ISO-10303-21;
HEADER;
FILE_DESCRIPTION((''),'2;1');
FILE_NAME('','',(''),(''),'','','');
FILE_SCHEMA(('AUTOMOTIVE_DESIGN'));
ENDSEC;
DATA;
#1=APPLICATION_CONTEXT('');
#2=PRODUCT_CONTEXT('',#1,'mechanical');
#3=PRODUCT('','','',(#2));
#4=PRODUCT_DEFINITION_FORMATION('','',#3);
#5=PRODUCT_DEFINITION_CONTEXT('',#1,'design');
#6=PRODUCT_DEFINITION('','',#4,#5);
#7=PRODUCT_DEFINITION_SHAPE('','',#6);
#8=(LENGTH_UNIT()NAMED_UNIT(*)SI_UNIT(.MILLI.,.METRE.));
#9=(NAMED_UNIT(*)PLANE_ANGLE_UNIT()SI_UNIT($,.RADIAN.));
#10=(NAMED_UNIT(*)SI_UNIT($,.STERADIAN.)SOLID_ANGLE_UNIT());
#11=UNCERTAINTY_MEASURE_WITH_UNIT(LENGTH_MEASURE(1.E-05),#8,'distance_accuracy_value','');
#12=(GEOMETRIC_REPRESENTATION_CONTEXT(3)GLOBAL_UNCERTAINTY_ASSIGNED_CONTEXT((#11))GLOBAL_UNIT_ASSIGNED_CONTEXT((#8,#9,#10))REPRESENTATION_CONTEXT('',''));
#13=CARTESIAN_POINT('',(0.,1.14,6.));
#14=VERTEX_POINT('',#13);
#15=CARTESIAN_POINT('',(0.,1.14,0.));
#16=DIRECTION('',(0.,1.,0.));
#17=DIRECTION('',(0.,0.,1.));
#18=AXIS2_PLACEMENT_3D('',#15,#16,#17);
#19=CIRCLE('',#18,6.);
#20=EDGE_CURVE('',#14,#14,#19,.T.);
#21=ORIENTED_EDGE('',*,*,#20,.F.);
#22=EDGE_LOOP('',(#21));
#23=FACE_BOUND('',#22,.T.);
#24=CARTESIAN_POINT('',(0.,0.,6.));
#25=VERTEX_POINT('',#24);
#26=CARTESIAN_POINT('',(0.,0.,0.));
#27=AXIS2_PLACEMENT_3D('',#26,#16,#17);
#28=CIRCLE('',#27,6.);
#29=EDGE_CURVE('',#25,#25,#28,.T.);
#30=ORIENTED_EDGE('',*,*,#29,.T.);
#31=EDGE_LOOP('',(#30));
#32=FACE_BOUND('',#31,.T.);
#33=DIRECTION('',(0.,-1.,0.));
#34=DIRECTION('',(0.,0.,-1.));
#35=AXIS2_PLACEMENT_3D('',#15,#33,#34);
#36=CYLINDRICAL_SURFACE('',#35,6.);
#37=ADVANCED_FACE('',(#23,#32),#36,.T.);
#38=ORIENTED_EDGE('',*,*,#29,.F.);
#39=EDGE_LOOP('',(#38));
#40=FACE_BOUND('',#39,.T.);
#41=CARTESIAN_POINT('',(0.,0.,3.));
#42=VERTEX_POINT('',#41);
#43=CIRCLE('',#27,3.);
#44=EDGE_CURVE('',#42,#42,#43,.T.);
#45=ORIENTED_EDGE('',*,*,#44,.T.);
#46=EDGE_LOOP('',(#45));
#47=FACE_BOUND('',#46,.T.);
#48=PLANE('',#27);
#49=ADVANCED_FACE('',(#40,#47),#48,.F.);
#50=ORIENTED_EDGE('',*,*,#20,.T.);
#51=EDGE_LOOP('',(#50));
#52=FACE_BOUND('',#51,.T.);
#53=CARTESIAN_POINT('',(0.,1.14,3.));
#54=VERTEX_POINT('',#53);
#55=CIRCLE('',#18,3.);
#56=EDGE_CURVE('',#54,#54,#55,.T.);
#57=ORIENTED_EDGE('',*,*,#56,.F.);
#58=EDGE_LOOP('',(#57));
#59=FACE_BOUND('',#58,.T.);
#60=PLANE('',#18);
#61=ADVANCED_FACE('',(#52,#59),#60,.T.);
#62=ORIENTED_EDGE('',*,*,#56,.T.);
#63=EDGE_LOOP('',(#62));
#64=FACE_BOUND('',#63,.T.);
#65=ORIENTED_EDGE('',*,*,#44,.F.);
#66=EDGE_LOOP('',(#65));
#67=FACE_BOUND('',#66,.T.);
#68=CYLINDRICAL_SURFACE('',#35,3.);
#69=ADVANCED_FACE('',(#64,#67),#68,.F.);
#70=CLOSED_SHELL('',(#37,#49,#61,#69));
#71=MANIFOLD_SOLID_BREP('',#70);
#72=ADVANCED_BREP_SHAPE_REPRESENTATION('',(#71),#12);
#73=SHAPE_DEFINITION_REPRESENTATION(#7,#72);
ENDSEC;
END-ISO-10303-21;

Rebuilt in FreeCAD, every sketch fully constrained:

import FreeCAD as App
import Part
import Sketcher

doc = App.newDocument("Part")
params = doc.addObject("Spreadsheet::Sheet", "Params")
for row, (alias, value) in enumerate([
    ("sketch1_diameter", "12 mm"),
    ("sketch1_diameter2", "6 mm"),
    ("pad1_length", "1.14 mm"),
], start=1):
    params.set(f"A{row}", alias)
    params.set(f"B{row}", "=" + value)
    params.setAlias(f"B{row}", alias)

body = doc.addObject("PartDesign::Body", "Body")

# Sketch on XZ plane
sketch1 = doc.addObject("Sketcher::SketchObject", "Sketch")
body.addObject(sketch1)
sketch1.AttachmentSupport = (doc.XZ_Plane, [""])
sketch1.MapMode = "FlatFace"
sketch1.addGeometry(Part.Circle(App.Vector(0, 0, 0), App.Vector(0, 0, 1), 6), False)
sketch1.addGeometry(Part.Circle(App.Vector(0, 0, 0), App.Vector(0, 0, 1), 3), False)
sketch1.addConstraint(Sketcher.Constraint("Coincident", 0, 3, -1, 1))
sketch1.addConstraint(Sketcher.Constraint("Coincident", 1, 3, -1, 1))
sketch1.addConstraint(Sketcher.Constraint("Diameter", 0, 12.0))
sketch1.addConstraint(Sketcher.Constraint("Diameter", 1, 6.0))
sketch1.setExpression("Constraints[2]", "Params.sketch1_diameter")
sketch1.setExpression("Constraints[3]", "Params.sketch1_diameter2")
pad1 = doc.addObject("PartDesign::Pad", "Pad")
body.addObject(pad1)
pad1.Profile = sketch1
pad1.setExpression("Length", "Params.pad1_length")
pad1.Reversed = True

doc.recompute()
